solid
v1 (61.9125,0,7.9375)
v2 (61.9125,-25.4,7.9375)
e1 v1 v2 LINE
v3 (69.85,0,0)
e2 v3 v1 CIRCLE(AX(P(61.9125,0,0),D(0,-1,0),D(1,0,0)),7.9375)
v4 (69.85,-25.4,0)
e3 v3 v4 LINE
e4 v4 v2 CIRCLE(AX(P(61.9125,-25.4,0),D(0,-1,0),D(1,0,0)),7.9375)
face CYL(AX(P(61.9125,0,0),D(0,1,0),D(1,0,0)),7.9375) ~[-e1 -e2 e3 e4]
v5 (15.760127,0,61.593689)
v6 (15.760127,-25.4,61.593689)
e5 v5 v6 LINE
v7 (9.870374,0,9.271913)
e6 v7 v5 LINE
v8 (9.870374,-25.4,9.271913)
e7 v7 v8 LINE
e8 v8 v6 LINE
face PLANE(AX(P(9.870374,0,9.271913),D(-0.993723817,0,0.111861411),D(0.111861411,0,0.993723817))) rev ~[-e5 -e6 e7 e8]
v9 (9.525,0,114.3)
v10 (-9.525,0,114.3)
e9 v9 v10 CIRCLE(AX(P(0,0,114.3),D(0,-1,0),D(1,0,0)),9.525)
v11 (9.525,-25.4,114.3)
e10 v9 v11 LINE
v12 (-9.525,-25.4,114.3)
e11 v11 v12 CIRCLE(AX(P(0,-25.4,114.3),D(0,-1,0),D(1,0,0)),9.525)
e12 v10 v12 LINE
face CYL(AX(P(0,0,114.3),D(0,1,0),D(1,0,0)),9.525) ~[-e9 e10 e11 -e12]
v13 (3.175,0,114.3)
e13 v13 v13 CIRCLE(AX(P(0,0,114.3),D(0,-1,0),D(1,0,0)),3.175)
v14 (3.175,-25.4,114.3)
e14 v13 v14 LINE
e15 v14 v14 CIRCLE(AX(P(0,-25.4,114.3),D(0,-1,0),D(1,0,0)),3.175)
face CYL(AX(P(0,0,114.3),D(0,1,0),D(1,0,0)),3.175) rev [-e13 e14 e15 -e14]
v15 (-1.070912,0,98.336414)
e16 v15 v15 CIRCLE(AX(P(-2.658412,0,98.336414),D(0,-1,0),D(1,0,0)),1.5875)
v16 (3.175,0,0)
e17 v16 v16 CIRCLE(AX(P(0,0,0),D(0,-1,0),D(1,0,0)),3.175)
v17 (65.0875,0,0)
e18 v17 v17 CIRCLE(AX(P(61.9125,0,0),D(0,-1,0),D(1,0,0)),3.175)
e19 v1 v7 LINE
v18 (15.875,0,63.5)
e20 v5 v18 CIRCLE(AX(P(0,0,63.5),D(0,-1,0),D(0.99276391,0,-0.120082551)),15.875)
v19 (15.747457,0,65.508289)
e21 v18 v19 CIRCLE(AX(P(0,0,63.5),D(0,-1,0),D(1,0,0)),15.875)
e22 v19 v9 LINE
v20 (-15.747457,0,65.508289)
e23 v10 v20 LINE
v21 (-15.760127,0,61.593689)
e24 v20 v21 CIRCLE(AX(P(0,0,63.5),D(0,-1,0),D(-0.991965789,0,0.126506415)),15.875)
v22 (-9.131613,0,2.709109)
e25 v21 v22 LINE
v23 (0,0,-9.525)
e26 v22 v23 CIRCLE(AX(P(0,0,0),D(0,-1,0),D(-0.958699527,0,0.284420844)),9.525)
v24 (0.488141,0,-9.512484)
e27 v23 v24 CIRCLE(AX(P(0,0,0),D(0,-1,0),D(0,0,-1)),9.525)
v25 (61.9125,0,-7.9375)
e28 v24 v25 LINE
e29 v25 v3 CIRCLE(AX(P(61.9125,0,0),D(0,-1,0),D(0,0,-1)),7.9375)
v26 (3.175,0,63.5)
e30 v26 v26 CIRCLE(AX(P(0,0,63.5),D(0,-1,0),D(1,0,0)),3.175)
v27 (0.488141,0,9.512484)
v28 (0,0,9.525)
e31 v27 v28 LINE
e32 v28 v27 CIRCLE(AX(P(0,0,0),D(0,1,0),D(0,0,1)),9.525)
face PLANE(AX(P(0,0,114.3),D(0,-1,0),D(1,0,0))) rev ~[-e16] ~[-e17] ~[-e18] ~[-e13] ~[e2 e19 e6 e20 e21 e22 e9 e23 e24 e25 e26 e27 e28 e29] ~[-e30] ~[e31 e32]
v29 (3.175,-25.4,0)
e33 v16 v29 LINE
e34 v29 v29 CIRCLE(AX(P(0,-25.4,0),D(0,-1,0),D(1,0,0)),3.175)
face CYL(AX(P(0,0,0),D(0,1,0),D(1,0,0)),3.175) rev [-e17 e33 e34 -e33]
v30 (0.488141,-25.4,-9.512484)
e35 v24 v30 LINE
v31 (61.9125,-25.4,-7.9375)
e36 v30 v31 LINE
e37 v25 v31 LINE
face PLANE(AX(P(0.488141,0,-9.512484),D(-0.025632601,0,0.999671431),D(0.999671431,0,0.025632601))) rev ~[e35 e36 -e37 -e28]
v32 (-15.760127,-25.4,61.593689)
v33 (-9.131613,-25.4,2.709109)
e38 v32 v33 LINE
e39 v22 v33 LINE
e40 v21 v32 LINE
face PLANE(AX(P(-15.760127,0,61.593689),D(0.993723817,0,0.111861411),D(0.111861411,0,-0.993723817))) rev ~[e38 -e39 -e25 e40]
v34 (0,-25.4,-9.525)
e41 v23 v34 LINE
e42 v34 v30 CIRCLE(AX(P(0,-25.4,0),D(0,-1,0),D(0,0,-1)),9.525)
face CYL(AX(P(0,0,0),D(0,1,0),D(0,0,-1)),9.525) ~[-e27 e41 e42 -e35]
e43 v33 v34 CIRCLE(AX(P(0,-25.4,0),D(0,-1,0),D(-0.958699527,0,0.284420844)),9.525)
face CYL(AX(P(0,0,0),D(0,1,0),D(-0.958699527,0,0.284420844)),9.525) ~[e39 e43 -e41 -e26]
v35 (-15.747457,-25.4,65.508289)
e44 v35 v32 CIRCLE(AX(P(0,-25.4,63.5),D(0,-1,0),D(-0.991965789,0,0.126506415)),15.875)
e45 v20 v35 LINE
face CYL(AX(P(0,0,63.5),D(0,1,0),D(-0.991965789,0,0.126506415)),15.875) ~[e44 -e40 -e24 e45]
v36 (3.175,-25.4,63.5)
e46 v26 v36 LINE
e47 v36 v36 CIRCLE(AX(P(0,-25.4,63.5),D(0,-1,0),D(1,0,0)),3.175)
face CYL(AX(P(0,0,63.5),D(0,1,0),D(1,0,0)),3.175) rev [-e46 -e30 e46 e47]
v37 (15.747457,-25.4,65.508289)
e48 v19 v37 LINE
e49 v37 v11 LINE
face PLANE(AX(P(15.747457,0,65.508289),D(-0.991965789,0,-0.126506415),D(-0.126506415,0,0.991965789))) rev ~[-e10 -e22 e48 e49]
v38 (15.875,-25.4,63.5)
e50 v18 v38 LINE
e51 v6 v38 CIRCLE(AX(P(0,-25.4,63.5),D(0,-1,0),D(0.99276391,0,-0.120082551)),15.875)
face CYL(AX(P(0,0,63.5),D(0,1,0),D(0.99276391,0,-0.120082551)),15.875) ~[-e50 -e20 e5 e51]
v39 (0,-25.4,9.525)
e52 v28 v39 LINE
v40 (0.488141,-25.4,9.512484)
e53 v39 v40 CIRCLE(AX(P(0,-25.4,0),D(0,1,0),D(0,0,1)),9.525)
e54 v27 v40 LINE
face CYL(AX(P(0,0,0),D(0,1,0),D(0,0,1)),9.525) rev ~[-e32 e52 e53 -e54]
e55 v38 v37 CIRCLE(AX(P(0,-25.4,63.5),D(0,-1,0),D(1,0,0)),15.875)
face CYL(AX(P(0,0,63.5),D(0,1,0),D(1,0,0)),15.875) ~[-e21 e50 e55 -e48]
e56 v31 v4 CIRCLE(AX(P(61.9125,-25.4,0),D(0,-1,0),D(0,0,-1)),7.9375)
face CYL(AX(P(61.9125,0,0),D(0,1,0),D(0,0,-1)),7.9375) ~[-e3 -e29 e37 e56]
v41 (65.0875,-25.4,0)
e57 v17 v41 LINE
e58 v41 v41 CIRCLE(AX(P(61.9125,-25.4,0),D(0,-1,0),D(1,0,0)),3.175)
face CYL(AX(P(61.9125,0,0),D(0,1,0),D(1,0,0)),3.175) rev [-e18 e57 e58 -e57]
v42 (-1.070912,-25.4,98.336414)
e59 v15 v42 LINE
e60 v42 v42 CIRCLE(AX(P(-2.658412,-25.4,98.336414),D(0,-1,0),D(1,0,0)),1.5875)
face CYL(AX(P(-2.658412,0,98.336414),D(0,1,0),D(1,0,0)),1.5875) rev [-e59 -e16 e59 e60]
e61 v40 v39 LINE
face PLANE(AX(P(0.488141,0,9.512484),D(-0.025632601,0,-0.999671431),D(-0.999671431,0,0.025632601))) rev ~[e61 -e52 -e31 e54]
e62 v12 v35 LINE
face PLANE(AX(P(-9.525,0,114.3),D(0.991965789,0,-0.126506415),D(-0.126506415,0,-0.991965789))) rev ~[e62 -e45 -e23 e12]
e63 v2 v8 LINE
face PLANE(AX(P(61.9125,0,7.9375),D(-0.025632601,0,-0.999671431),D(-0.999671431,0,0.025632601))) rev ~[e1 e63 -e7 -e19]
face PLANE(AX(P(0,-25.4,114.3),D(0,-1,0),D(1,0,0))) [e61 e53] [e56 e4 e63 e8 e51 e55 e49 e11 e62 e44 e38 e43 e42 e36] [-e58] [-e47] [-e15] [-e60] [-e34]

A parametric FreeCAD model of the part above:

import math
import FreeCAD as App
import Part
import Sketcher
from FreeCAD import Vector
Q = App.Units.Quantity

doc = App.newDocument("Part")
body = doc.addObject("PartDesign::Body", "Body")

# Sketch on XZ plane
sketch1 = body.newObject("Sketcher::SketchObject", "Sketch")
sketch1.AttachmentSupport = (doc.getObject("XZ_Plane"), [""])
sketch1.MapMode = "FlatFace"
sketch1.addGeometry(Part.LineSegment(Vector(61.9125, 7.9375, 0), Vector(9.870374, 9.271913, 0)), False)
sketch1.addGeometry(Part.LineSegment(Vector(9.870374, 9.271913, 0), Vector(15.760127, 61.593689, 0)), False)
sketch1.addGeometry(Part.ArcOfCircle(Part.Circle(Vector(0, 63.5, 0), Vector(0, 0, 1), 15.875), math.radians(-6.896867), math.radians(0)), False)
sketch1.addGeometry(Part.ArcOfCircle(Part.Circle(Vector(0, 63.5, 0), Vector(0, 0, 1), 15.875), math.radians(0), math.radians(7.267757)), False)
sketch1.addGeometry(Part.LineSegment(Vector(15.747457, 65.508289, 0), Vector(9.525, 114.3, 0)), False)
sketch1.addGeometry(Part.ArcOfCircle(Part.Circle(Vector(0, 114.3, 0), Vector(0, 0, 1), 9.525), math.radians(0), math.radians(180)), False)
sketch1.addGeometry(Part.LineSegment(Vector(-9.525, 114.3, 0), Vector(-15.747457, 65.508289, 0)), False)
sketch1.addGeometry(Part.ArcOfCircle(Part.Circle(Vector(0, 63.5, 0), Vector(0, 0, 1), 15.875), math.radians(172.732242), math.radians(186.896867)), False)
sketch1.addGeometry(Part.LineSegment(Vector(-15.760127, 61.593689, 0), Vector(-9.131613, 2.709109, 0)), False)
sketch1.addGeometry(Part.ArcOfCircle(Part.Circle(Vector(0, 0, 0), Vector(0, 0, 1), 9.525), math.radians(163.475767), math.radians(270)), False)
sketch1.addGeometry(Part.ArcOfCircle(Part.Circle(Vector(0, 0, 0), Vector(0, 0, 1), 9.525), math.radians(-90), math.radians(-87.062399)), False)
sketch1.addGeometry(Part.LineSegment(Vector(0.488141, -9.512484, 0), Vector(61.9125, -7.9375, 0)), False)
sketch1.addGeometry(Part.ArcOfCircle(Part.Circle(Vector(61.9125, 0, 0), Vector(0, 0, 1), 7.9375), math.radians(-90), math.radians(0)), False)
sketch1.addGeometry(Part.ArcOfCircle(Part.Circle(Vector(61.9125, 0, 0), Vector(0, 0, 1), 7.9375), math.radians(0), math.radians(90)), False)
sketch1.addGeometry(Part.Circle(Vector(0, 0, 0), Vector(0, 0, 1), 3.175), False)
sketch1.addGeometry(Part.ArcOfCircle(Part.Circle(Vector(0, 0, 0), Vector(0, 0, 1), 9.525), math.radians(87.062399), math.radians(90)), False)
sketch1.addGeometry(Part.LineSegment(Vector(0.488141, 9.512484, 0), Vector(0, 9.525, 0)), False)
sketch1.addGeometry(Part.Circle(Vector(61.9125, 0, 0), Vector(0, 0, 1), 3.175), False)
sketch1.addGeometry(Part.Circle(Vector(0, 63.5, 0), Vector(0, 0, 1), 3.175), False)
sketch1.addGeometry(Part.Circle(Vector(-2.658412, 98.336414, 0), Vector(0, 0, 1), 1.5875), False)
sketch1.addGeometry(Part.Circle(Vector(0, 114.3, 0), Vector(0, 0, 1), 3.175), False)
sketch1.addConstraint(Sketcher.Constraint("Coincident", 0, 2, 1, 1))
sketch1.addConstraint(Sketcher.Constraint("Coincident", 1, 2, 2, 1))
sketch1.addConstraint(Sketcher.Constraint("Tangent", 2, 2, 3, 1))
sketch1.addConstraint(Sketcher.Constraint("Tangent", 3, 2, 4, 1))
sketch1.addConstraint(Sketcher.Constraint("Coincident", 4, 2, 5, 1))
sketch1.addConstraint(Sketcher.Constraint("Coincident", 5, 2, 6, 1))
sketch1.addConstraint(Sketcher.Constraint("Tangent", 6, 2, 7, 1))
sketch1.addConstraint(Sketcher.Constraint("Coincident", 7, 2, 8, 1))
sketch1.addConstraint(Sketcher.Constraint("Coincident", 8, 2, 9, 1))
sketch1.addConstraint(Sketcher.Constraint("Tangent", 9, 2, 10, 1))
sketch1.addConstraint(Sketcher.Constraint("Coincident", 10, 2, 11, 1))
sketch1.addConstraint(Sketcher.Constraint("Coincident", 11, 2, 12, 1))
sketch1.addConstraint(Sketcher.Constraint("Tangent", 12, 2, 13, 1))
sketch1.addConstraint(Sketcher.Constraint("Coincident", 13, 2, 0, 1))
sketch1.addConstraint(Sketcher.Constraint("Coincident", 15, 1, 16, 1))
sketch1.addConstraint(Sketcher.Constraint("Coincident", 16, 2, 15, 2))
sketch1.addConstraint(Sketcher.Constraint("Coincident", 9, 3, -1, 1))
sketch1.addConstraint(Sketcher.Constraint("Coincident", 14, 3, -1, 1))
sketch1.addConstraint(Sketcher.Constraint("Coincident", 15, 3, -1, 1))
sketch1.addConstraint(Sketcher.Constraint("Coincident", 7, 3, 2, 3))
sketch1.addConstraint(Sketcher.Constraint("Coincident", 17, 3, 12, 3))
sketch1.addConstraint(Sketcher.Constraint("Coincident", 18, 3, 2, 3))
sketch1.addConstraint(Sketcher.Constraint("Coincident", 20, 3, 5, 3))
sketch1.addConstraint(Sketcher.Constraint("Equal", 2, 3))
sketch1.addConstraint(Sketcher.Constraint("Equal", 3, 7))
sketch1.addConstraint(Sketcher.Constraint("Equal", 5, 9))
sketch1.addConstraint(Sketcher.Constraint("Equal", 9, 10))
sketch1.addConstraint(Sketcher.Constraint("Equal", 12, 13))
sketch1.addConstraint(Sketcher.Constraint("Equal", 10, 15))
sketch1.addConstraint(Sketcher.Constraint("Equal", 14, 17))
sketch1.addConstraint(Sketcher.Constraint("Equal", 17, 18))
sketch1.addConstraint(Sketcher.Constraint("Equal", 18, 20))
sketch1.addConstraint(Sketcher.Constraint("Symmetric", 4, 2, 5, 2, -2))
sketch1.addConstraint(Sketcher.Constraint("Symmetric", 1, 2, 7, 2, -2))
sketch1.addConstraint(Sketcher.Constraint("Symmetric", 11, 2, 13, 2, -1))
sketch1.addConstraint(Sketcher.Constraint("PointOnObject", 9, 2, -2))
sketch1.addConstraint(Sketcher.Constraint("PointOnObject", 12, 2, -1))
sketch1.addConstraint(Sketcher.Constraint("PointOnObject", 16, 2, -2))
sketch1.addConstraint(Sketcher.Constraint("Parallel", 0, 16))
sketch1.addConstraint(Sketcher.Constraint("Horizontal", 18, 3, 2, 2))
sketch1.addConstraint(Sketcher.Constraint("Horizontal", 20, 3, 4, 2))
sketch1.addConstraint(Sketcher.Constraint("Vertical", 17, 3, 11, 2))
sketch1.addConstraint(Sketcher.Constraint("Vertical", 10, 2, 15, 1))
sketch1.addConstraint(Sketcher.Constraint("Diameter", 14, Q("0.25 in")))
sketch1.addConstraint(Sketcher.Constraint("Diameter", 19, Q("0.125 in")))
sketch1.addConstraint(Sketcher.Constraint("Radius", 2, Q("0.625 in")))
sketch1.addConstraint(Sketcher.Constraint("Radius", 5, Q("0.375 in")))
sketch1.addConstraint(Sketcher.Constraint("Radius", 12, Q("0.3125 in")))
sketch1.addConstraint(Sketcher.Constraint("DistanceY", 2, 3, 5, 3, Q("2 in")))
sketch1.addConstraint(Sketcher.Constraint("DistanceY", -1, 1, 2, 3, Q("2.5 in")))
sketch1.addConstraint(Sketcher.Constraint("DistanceX", -1, 1, 12, 2, Q("2.75 in")))
sketch1.addConstraint(Sketcher.Constraint("Distance", 16, 0.488301))
sketch1.addConstraint(Sketcher.Constraint("DistanceY", 1, 2, 3, 2, 3.9146))
sketch1.addConstraint(Sketcher.Constraint("Distance", 0, 52.059231))
sketch1.addConstraint(Sketcher.Constraint("DistanceY", -1, 1, 8, 2, 2.709109))
sketch1.addConstraint(Sketcher.Constraint("DistanceX", 19, 3, 1, 2, 18.41854))
sketch1.addConstraint(Sketcher.Constraint("DistanceY", -1, 1, 19, 3, 98.336414))
pad1 = body.newObject("PartDesign::Pad", "Pad")
pad1.Profile = sketch1
pad1.Length = Q("1 in")

doc.recompute()
